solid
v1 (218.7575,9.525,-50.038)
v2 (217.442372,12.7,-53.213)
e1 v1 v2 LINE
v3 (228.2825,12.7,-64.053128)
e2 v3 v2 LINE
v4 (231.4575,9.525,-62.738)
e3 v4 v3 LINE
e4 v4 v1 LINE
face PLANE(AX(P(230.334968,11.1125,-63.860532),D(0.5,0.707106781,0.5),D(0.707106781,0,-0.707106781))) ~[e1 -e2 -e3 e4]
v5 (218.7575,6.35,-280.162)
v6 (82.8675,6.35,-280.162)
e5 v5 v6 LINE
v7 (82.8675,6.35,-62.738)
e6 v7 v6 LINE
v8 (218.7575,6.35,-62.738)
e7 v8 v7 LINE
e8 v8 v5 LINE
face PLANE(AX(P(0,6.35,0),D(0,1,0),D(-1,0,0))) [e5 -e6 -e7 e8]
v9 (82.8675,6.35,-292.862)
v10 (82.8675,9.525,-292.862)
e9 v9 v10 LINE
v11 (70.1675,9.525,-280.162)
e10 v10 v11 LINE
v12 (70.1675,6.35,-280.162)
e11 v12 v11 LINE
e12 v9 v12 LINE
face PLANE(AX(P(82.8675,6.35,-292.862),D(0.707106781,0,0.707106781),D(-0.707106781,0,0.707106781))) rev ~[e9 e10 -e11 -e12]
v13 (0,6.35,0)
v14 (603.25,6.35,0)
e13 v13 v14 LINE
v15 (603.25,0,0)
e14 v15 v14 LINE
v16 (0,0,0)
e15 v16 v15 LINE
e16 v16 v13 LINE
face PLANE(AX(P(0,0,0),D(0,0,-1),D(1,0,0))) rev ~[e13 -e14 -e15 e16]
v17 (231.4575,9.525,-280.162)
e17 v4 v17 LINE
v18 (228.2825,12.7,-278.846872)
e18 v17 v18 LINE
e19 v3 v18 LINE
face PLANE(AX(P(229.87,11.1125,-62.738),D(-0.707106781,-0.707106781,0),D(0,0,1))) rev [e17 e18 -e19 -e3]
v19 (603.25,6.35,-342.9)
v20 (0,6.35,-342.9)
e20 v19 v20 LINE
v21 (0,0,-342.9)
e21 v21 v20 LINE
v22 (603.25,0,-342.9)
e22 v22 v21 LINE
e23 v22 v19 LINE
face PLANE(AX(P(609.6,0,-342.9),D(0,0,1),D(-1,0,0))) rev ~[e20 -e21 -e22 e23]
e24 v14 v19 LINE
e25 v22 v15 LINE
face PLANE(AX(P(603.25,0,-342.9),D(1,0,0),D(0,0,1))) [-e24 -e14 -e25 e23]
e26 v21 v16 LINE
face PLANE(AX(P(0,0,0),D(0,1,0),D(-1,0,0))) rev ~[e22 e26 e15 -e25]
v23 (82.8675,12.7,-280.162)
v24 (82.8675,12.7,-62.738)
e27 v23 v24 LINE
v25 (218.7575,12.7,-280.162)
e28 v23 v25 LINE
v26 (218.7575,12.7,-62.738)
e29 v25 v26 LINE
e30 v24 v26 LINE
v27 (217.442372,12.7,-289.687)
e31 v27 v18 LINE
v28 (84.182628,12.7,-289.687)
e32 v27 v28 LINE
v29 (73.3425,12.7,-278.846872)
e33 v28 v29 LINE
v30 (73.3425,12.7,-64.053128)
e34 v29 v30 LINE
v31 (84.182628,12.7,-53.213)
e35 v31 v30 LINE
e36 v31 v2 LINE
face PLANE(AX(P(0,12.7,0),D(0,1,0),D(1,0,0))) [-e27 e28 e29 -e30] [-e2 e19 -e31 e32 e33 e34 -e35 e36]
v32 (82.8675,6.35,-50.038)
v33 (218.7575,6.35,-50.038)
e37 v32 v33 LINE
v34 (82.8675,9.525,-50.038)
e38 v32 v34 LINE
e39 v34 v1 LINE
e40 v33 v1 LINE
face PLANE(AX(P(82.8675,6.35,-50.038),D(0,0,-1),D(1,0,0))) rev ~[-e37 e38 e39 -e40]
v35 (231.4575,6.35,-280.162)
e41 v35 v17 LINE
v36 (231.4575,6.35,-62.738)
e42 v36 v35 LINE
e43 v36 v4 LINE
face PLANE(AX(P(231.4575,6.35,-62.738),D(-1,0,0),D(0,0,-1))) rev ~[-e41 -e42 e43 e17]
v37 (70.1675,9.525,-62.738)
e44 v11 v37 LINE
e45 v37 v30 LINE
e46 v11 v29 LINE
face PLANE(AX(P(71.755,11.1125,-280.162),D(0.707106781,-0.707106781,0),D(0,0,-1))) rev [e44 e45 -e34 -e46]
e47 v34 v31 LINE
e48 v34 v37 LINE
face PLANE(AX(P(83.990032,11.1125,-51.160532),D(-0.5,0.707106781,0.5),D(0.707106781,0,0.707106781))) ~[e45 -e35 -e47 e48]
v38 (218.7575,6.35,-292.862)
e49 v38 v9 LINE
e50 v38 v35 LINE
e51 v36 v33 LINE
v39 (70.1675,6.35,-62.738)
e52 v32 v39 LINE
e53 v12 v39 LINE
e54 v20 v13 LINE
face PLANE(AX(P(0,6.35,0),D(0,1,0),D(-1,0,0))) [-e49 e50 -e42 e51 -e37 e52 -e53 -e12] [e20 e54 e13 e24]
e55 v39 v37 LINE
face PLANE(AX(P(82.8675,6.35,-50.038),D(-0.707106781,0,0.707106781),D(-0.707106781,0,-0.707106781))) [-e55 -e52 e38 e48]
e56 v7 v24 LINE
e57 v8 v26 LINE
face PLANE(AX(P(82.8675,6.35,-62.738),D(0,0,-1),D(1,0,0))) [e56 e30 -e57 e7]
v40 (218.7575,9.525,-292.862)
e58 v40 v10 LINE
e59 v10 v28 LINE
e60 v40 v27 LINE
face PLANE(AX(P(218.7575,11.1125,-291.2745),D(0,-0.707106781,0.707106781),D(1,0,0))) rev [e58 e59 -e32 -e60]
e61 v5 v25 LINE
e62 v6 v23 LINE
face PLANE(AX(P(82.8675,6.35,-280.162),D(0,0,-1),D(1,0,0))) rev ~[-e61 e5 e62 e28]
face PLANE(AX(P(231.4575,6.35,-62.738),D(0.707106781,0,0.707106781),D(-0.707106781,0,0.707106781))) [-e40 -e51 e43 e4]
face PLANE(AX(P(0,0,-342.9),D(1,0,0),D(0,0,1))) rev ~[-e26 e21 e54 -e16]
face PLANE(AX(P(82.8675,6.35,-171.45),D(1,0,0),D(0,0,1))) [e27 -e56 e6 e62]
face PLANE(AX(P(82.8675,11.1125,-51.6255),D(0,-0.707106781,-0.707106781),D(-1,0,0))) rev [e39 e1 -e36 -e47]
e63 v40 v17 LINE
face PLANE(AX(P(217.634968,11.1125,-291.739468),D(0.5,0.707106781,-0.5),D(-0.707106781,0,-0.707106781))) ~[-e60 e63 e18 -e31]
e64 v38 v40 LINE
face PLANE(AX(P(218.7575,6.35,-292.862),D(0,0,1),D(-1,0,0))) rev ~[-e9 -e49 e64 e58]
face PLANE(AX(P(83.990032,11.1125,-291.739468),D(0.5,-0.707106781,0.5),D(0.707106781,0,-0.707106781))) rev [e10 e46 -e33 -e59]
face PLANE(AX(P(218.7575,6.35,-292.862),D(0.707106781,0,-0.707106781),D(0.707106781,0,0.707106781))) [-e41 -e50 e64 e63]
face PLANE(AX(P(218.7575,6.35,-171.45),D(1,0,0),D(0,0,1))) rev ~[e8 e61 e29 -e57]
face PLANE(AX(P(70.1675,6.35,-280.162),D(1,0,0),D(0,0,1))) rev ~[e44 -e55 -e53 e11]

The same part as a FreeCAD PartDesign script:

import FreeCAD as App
import Part
import Sketcher
Q = App.Units.Quantity


def edges_at(feature, points):
    """Names of the edges that pass closest to the given points."""
    edges = feature.Shape.Edges
    near = lambda p: min(range(len(edges)), key=lambda i: edges[i].distToShape(Part.Vertex(*p))[0])
    return sorted({f"Edge{near(p) + 1}" for p in points})


def add_polygon(sketch, points):
    """Adds a closed chain of lines whose ends are joined by coincident constraints."""
    first, n = sketch.GeometryCount, len(points)
    for a, b in zip(points, points[1:] + points[:1]):
        sketch.addGeometry(Part.LineSegment(App.Vector(*a, 0), App.Vector(*b, 0)), False)
    for i in range(n):
        sketch.addConstraint(Sketcher.Constraint("Coincident", first + i, 2, first + (i + 1) % n, 1))

doc = App.newDocument("Part")
params = doc.addObject("Spreadsheet::Sheet", "Params")
for row, (alias, value) in enumerate([
    ("sketch1_width", "24 in"),
    ("sketch1_height", "13.5 in"),
    ("pad1_length", "0.25 in"),
    ("sketch2_width", "0.25 in"),
    ("sketch2_height", "13.5 in"),
    ("pocket1_length", "9.125 in"),
    ("sketch3_width", "5.35 in"),
    ("sketch3_height", "8.56 in"),
    ("pad2_length", "0.25 in"),
    ("chamfer_size", "0.125 in"),
], start=1):
    params.set(f"A{row}", alias)
    params.set(f"B{row}", "=" + value)
    params.setAlias(f"B{row}", alias)

body = doc.addObject("PartDesign::Body", "Body")

# Sketch on XZ plane
sketch1 = body.newObject("Sketcher::SketchObject", "Sketch")
sketch1.AttachmentSupport = (doc.getObject("XZ_Plane"), [""])
sketch1.MapMode = "FlatFace"
add_polygon(sketch1, [(0, -343), (0, 0), (610, 0), (610, -343)])  # lines 0-3
sketch1.addConstraint([
    Sketcher.Constraint("Vertical", 0),
    Sketcher.Constraint("Horizontal", 1),
    Sketcher.Constraint("Vertical", 2),
    Sketcher.Constraint("Horizontal", 3),
    Sketcher.Constraint("Coincident", 0, 2, -1, 1),
    Sketcher.Constraint("DistanceX", 1, 1, 1, 2, Q("24 in")),
    Sketcher.Constraint("DistanceY", 0, 1, 0, 2, Q("13.5 in")),
])
sketch1.setExpression("Constraints[9]", "Params.sketch1_width")
sketch1.setExpression("Constraints[10]", "Params.sketch1_height")
pad1 = body.newObject("PartDesign::Pad", "Pad")
pad1.Profile = sketch1
pad1.setExpression("Length", "Params.pad1_length")
pad1.Reversed = True

# Sketch on XZ plane
sketch2 = body.newObject("Sketcher::SketchObject", "Sketch001")
sketch2.AttachmentSupport = (doc.getObject("XZ_Plane"), [""])
sketch2.MapMode = "FlatFace"
add_polygon(sketch2, [(610, 0), (610, -343), (603, -343), (603, 0)])  # lines 0-3
sketch2.addConstraint([
    Sketcher.Constraint("Vertical", 0),
    Sketcher.Constraint("Horizontal", 1),
    Sketcher.Constraint("Vertical", 2),
    Sketcher.Constraint("Horizontal", 3),
    Sketcher.Constraint("PointOnObject", 2, 2, -1),
    Sketcher.Constraint("DistanceX", 1, 2, 1, 1, Q("0.25 in")),
    Sketcher.Constraint("DistanceY", 0, 2, 0, 1, Q("13.5 in")),
    Sketcher.Constraint("DistanceX", -1, 1, 0, 2, Q("24 in")),
])
sketch2.setExpression("Constraints[9]", "Params.sketch2_width")
sketch2.setExpression("Constraints[10]", "Params.sketch2_height")
pocket1 = body.newObject("PartDesign::Pocket", "Pocket")
pocket1.Profile = sketch2
pocket1.setExpression("Length", "Params.pocket1_length")

# Sketch on XZ plane
sketch3 = body.newObject("Sketcher::SketchObject", "Sketch002")
sketch3.AttachmentSupport = (doc.getObject("XZ_Plane"), [""])
sketch3.MapMode = "FlatFace"
sketch3.AttachmentOffset = App.Placement(App.Vector(0, 0, -0.25 * 25.4), App.Rotation())
add_polygon(sketch3, [(70, -280), (70, -63), (83, -50), (219, -50), (231, -63), (231, -280), (219, -293), (83, -293)])  # lines 0-7
add_polygon(sketch3, [(83, -63), (83, -280), (219, -280), (219, -63)])  # lines 8-11
sketch3.addConstraint([
    Sketcher.Constraint("Vertical", 0),
    Sketcher.Constraint("Horizontal", 2),
    Sketcher.Constraint("Vertical", 4),
    Sketcher.Constraint("Horizontal", 6),
    Sketcher.Constraint("Vertical", 8),
    Sketcher.Constraint("Horizontal", 9),
    Sketcher.Constraint("Vertical", 10),
    Sketcher.Constraint("Horizontal", 11),
    Sketcher.Constraint("Perpendicular", 1, 3),
    Sketcher.Constraint("Perpendicular", 3, 5),
    Sketcher.Constraint("Perpendicular", 5, 7),
    Sketcher.Constraint("Horizontal", 0, 2, 3, 2),
    Sketcher.Constraint("Horizontal", 4, 2, 7, 2),
    Sketcher.Constraint("Horizontal", 7, 2, 8, 2),
    Sketcher.Constraint("Horizontal", 3, 2, 10, 2),
    Sketcher.Constraint("Vertical", 2, 2, 5, 2),
    Sketcher.Constraint("Vertical", 1, 2, 6, 2),
    Sketcher.Constraint("Vertical", 6, 2, 8, 2),
    Sketcher.Constraint("Vertical", 5, 2, 9, 2),
    Sketcher.Constraint("DistanceX", 2, 1, 2, 2, Q("5.35 in")),
    Sketcher.Constraint("DistanceY", 0, 1, 0, 2, Q("8.56 in")),
    Sketcher.Constraint("DistanceX", 0, 2, 1, 2, Q("0.5 in")),
    Sketcher.Constraint("DistanceY", 0, 2, -1, 1, Q("2.47 in")),
    Sketcher.Constraint("DistanceX", -1, 1, 0, 2, Q("2.7625 in")),
])
sketch3.setExpression("Constraints[31]", "Params.sketch3_width")
sketch3.setExpression("Constraints[32]", "Params.sketch3_height")
pad2 = body.newObject("PartDesign::Pad", "Pad001")
pad2.Profile = sketch3
pad2.setExpression("Length", "Params.pad2_length")
pad2.Reversed = True
doc.recompute()

chamfer = body.newObject("PartDesign::Chamfer", "Chamfer")
chamfer.Base = (pad2, edges_at(pad2, [
    (70.168, 12.7, -171.45),
    (76.517, 12.7, -286.512),
    (150.812, 12.7, -292.862),
    (225.107, 12.7, -286.512),
    (231.458, 12.7, -171.45),
    (225.107, 12.7, -56.388),
    (150.812, 12.7, -50.038),
    (76.517, 12.7, -56.388),
]))
chamfer.setExpression("Size", "Params.chamfer_size")

doc.recompute()
